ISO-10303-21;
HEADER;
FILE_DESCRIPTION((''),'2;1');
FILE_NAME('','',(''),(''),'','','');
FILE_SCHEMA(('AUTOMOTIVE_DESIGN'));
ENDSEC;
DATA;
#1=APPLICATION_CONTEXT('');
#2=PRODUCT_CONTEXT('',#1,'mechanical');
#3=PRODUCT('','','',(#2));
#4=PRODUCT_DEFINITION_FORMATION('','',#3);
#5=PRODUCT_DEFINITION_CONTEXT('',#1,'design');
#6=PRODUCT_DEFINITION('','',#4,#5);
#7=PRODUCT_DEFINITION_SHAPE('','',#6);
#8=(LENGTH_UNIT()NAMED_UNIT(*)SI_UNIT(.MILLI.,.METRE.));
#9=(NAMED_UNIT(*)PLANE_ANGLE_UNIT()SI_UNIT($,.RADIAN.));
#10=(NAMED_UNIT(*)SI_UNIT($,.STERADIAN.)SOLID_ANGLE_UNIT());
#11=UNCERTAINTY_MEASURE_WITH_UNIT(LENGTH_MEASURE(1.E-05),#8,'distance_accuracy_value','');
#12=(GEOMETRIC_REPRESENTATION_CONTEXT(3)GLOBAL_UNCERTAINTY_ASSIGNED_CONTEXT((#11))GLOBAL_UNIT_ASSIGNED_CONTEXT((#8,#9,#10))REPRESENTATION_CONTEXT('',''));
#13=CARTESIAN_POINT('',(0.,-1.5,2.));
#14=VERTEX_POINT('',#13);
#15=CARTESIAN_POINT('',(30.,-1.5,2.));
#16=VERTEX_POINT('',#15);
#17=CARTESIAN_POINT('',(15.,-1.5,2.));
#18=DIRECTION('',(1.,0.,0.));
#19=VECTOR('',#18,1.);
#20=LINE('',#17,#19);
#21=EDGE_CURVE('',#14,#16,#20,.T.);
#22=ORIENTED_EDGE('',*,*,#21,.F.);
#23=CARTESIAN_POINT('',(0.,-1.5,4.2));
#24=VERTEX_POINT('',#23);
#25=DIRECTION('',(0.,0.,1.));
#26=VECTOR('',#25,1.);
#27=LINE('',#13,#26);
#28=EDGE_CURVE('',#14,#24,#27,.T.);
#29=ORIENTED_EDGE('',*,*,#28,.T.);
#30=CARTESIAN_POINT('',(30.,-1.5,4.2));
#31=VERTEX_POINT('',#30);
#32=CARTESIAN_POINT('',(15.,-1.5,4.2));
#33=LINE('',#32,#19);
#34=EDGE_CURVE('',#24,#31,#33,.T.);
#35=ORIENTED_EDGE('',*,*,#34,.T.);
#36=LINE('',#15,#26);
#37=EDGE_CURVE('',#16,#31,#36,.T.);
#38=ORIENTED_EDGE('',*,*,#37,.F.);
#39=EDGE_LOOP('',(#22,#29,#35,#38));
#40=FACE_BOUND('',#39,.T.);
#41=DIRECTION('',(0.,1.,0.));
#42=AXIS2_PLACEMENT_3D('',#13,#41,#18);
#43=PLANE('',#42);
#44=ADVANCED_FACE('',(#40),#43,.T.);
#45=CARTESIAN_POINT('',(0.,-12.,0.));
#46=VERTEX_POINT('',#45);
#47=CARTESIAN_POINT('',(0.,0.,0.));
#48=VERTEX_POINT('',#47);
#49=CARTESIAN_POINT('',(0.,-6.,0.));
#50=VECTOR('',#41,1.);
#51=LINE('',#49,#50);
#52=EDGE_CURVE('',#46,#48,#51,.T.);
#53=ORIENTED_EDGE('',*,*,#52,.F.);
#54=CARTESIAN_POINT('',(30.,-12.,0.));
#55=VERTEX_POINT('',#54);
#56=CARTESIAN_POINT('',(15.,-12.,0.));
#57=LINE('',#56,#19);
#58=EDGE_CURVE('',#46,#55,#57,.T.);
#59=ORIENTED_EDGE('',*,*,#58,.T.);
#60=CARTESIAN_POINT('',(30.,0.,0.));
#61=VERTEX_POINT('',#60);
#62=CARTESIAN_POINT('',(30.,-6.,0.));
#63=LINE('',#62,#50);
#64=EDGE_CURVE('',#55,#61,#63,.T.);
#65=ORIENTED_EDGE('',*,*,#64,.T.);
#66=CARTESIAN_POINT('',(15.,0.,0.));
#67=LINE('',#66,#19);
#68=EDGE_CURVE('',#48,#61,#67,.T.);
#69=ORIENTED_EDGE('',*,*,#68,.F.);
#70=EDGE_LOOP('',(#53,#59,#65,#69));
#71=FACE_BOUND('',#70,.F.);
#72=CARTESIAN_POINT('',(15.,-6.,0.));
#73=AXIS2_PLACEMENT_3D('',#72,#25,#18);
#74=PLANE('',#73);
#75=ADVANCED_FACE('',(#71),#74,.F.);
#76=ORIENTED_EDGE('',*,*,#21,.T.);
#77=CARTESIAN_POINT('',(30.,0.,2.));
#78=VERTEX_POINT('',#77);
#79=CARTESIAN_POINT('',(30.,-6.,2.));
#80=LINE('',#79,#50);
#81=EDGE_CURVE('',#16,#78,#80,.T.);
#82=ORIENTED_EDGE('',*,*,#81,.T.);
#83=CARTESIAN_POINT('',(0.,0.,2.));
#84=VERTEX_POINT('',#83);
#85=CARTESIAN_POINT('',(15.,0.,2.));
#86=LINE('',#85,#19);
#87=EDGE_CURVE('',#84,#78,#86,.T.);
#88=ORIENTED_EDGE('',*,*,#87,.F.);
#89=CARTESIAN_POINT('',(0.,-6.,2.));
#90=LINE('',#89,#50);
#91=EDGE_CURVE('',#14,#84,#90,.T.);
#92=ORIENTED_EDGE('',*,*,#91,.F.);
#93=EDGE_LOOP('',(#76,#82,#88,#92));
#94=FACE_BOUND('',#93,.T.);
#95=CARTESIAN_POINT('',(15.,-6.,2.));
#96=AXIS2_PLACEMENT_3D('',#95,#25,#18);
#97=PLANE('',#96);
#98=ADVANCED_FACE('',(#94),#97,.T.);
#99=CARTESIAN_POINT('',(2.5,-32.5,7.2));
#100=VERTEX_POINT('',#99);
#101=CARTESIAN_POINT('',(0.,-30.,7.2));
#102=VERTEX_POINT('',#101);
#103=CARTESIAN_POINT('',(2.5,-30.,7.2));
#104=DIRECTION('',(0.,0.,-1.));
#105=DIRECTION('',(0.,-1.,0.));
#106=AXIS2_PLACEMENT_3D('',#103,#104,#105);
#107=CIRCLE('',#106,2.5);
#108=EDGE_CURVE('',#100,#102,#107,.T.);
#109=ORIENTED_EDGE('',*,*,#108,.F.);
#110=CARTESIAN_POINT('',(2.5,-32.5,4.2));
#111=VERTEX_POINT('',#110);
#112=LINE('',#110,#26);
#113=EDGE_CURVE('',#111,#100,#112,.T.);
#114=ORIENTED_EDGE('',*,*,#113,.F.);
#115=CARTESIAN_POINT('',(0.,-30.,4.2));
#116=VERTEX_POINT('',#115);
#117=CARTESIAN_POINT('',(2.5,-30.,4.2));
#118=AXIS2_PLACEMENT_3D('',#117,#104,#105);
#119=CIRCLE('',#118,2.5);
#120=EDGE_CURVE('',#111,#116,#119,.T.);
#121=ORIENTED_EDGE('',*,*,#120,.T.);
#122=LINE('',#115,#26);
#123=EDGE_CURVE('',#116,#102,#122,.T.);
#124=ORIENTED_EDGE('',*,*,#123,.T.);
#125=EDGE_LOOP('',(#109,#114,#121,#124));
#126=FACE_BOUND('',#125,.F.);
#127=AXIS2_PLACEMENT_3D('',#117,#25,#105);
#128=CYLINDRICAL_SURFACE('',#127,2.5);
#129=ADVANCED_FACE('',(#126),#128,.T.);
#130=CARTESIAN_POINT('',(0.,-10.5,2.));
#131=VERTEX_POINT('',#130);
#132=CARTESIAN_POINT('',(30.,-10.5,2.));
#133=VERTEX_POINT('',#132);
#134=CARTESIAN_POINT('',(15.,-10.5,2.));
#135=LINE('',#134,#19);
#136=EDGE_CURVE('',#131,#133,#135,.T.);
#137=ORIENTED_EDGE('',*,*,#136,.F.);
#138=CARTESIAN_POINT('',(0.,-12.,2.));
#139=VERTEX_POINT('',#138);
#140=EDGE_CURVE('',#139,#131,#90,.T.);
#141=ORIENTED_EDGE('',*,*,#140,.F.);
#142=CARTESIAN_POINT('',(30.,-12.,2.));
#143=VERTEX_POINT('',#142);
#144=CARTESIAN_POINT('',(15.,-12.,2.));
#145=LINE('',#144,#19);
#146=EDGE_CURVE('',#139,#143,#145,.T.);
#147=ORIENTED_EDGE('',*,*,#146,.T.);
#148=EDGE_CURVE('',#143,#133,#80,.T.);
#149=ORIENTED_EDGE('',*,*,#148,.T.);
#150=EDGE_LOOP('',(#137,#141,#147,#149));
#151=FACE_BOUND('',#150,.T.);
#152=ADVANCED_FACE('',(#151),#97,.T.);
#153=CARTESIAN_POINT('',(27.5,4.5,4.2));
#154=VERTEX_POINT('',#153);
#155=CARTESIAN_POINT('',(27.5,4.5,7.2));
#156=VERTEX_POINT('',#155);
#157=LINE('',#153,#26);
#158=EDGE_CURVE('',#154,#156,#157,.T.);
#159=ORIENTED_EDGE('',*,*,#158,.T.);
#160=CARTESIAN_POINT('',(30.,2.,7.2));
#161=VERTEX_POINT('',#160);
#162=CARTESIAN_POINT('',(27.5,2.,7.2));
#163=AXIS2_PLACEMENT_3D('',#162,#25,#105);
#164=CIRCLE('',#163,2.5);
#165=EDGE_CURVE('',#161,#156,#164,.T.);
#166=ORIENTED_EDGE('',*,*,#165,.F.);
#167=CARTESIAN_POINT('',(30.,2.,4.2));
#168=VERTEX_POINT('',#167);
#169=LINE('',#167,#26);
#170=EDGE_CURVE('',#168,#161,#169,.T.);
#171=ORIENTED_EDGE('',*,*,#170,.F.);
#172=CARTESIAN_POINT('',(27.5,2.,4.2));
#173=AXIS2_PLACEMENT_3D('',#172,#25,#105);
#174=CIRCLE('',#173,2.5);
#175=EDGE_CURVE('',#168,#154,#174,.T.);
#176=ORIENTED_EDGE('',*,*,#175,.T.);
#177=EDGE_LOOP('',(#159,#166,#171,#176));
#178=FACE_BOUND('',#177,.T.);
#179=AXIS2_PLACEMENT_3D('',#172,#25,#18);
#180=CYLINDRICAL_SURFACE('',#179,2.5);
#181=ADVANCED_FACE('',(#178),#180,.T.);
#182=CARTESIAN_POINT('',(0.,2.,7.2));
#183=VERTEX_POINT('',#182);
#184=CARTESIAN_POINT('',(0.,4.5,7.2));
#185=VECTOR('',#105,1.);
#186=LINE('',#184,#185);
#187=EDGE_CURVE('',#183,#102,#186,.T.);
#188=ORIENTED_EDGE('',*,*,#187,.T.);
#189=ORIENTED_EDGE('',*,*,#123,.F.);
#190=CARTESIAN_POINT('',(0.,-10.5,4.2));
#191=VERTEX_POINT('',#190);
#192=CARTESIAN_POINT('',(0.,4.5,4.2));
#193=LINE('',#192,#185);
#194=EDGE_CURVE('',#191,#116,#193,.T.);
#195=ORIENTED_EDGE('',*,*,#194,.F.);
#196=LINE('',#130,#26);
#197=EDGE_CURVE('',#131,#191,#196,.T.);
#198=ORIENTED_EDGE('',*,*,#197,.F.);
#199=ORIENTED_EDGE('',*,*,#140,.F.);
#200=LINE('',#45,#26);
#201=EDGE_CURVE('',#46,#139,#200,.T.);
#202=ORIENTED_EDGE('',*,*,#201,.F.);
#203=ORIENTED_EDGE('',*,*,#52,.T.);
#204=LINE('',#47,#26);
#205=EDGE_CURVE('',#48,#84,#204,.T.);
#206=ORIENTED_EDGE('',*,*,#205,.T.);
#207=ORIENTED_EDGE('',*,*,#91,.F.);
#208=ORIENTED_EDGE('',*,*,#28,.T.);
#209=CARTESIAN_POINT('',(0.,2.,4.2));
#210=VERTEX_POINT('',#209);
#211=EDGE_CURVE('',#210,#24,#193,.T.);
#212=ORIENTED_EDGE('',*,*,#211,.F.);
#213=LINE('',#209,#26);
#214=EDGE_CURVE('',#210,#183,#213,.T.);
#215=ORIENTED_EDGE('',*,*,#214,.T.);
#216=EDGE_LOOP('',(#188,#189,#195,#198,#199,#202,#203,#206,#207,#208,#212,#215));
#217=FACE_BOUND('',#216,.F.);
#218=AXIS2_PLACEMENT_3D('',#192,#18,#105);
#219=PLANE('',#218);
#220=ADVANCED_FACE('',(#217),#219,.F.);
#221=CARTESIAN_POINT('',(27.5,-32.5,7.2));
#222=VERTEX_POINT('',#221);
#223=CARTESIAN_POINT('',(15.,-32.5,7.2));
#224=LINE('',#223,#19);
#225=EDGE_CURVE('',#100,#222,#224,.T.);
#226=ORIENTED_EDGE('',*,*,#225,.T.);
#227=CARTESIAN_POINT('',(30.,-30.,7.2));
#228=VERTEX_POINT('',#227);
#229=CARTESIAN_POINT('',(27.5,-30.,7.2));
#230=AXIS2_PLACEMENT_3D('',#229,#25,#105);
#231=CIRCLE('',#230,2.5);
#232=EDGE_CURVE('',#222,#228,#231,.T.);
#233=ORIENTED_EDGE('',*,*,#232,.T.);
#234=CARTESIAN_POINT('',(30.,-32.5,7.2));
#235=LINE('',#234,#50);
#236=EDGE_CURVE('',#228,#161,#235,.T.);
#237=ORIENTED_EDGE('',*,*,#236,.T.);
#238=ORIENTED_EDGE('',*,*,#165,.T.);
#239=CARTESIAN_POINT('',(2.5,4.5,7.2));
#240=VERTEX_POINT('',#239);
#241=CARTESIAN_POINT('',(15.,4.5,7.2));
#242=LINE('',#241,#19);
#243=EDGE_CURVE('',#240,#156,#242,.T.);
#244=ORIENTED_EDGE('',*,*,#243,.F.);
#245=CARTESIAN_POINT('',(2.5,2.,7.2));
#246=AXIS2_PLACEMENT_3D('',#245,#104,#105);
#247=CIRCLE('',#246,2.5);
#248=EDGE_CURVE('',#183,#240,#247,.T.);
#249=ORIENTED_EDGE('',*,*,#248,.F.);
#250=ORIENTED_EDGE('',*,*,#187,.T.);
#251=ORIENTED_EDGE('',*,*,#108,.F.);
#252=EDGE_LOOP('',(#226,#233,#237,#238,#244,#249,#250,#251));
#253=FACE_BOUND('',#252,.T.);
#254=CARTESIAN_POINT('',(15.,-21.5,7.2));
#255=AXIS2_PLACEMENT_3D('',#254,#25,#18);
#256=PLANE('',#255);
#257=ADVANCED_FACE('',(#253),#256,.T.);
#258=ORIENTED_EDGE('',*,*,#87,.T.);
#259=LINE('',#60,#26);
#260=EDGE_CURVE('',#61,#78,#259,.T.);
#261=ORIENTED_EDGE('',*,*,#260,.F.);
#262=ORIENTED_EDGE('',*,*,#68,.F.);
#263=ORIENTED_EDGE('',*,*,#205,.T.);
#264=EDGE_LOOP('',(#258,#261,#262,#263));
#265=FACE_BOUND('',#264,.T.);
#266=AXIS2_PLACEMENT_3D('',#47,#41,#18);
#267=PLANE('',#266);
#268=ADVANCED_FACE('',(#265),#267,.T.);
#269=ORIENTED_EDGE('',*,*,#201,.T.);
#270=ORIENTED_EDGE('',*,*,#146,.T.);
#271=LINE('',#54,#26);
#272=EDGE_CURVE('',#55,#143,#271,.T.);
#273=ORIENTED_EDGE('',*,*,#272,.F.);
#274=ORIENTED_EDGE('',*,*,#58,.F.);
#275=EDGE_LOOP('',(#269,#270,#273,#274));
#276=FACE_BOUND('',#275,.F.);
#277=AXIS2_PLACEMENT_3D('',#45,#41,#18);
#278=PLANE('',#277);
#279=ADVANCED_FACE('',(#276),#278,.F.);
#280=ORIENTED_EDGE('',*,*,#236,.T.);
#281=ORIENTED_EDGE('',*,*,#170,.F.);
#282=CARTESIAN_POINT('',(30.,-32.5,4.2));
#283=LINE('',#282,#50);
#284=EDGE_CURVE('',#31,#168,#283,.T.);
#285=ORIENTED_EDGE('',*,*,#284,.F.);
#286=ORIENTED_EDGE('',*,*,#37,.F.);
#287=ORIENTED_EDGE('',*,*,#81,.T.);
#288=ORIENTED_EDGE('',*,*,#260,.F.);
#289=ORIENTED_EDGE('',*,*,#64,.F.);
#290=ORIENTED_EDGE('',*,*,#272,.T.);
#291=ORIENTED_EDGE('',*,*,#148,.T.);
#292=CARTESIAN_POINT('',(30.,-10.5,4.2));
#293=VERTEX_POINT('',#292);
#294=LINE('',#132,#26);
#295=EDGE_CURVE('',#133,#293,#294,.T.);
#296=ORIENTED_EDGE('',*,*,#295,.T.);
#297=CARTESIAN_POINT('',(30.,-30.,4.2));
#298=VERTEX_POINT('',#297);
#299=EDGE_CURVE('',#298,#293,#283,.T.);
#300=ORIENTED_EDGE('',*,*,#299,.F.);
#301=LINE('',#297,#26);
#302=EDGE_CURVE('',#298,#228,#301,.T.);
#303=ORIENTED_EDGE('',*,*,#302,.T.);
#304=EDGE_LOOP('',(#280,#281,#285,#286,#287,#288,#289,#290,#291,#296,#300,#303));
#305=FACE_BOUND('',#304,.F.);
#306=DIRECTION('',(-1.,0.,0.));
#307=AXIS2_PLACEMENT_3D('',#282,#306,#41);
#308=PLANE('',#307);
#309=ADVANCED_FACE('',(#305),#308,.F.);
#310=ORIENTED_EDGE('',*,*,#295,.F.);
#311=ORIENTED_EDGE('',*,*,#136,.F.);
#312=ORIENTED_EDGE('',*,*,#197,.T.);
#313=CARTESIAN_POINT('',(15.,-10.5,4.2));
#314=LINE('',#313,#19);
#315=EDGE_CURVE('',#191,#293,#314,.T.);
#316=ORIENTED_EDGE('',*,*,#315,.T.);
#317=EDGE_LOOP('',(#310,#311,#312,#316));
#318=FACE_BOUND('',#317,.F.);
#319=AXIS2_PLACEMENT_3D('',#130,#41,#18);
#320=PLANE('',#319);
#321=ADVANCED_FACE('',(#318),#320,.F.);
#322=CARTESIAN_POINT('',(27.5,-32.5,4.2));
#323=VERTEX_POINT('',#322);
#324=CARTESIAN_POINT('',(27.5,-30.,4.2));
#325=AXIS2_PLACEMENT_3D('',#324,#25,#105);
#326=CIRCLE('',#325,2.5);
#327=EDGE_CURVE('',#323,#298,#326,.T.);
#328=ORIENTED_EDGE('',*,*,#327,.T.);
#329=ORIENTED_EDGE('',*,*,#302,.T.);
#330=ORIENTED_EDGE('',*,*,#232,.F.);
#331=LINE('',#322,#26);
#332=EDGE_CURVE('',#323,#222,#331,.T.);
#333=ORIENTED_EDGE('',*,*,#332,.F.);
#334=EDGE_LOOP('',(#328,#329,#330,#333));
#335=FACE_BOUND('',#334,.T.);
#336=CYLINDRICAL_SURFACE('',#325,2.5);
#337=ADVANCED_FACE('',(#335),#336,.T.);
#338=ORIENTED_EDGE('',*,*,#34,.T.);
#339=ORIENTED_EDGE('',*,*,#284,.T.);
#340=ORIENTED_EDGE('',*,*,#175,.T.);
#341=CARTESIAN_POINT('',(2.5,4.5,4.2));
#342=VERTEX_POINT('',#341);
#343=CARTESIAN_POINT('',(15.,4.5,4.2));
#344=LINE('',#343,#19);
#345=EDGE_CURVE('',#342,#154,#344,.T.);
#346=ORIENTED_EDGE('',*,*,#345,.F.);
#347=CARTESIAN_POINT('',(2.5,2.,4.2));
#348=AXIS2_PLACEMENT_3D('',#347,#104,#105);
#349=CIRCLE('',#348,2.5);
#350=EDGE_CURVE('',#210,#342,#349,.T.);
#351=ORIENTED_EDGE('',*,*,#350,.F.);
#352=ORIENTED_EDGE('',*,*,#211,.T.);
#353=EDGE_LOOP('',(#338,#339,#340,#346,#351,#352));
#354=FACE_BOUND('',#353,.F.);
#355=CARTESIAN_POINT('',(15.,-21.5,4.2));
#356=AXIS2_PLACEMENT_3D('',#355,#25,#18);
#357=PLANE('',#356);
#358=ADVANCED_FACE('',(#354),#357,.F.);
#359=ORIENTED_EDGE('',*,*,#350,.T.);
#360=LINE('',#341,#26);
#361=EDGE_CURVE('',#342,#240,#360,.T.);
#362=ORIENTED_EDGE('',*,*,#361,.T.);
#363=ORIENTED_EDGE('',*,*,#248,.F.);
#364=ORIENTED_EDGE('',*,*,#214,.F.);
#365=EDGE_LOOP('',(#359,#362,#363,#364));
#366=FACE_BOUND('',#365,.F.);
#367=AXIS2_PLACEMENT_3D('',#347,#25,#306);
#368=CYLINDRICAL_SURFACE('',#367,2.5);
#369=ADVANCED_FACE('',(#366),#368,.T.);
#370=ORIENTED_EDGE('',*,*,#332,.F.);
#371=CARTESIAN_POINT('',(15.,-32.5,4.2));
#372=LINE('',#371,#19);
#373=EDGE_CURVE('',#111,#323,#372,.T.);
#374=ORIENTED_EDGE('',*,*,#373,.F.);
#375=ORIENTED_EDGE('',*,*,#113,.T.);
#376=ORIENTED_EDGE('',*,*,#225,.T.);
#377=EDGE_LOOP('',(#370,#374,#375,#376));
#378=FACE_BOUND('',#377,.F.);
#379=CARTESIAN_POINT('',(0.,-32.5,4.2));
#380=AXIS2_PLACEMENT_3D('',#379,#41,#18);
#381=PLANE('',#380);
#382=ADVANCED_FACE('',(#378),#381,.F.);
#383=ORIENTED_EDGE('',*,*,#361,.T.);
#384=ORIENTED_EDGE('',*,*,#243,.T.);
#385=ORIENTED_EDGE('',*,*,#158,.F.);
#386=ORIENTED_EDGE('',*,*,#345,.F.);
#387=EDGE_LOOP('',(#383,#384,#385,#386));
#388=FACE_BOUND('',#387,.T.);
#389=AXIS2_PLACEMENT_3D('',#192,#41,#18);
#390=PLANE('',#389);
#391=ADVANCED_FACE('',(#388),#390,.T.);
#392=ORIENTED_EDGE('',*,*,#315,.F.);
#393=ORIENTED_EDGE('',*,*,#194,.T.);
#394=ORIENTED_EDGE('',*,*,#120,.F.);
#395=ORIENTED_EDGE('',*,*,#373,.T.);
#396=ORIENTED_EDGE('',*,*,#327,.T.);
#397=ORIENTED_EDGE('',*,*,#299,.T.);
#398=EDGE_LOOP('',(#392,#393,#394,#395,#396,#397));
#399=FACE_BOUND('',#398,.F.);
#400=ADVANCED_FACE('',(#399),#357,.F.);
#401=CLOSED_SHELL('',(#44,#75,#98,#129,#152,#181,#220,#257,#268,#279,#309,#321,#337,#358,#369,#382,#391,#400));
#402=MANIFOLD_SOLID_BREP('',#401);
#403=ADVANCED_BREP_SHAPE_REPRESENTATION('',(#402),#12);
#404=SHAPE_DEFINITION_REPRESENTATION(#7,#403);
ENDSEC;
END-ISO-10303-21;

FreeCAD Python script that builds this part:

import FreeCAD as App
import Part
import Sketcher
Q = App.Units.Quantity


def edges_at(feature, points):
    """Names of the edges that pass closest to the given points."""
    edges = feature.Shape.Edges
    near = lambda p: min(range(len(edges)), key=lambda i: edges[i].distToShape(Part.Vertex(*p))[0])
    return sorted({f"Edge{near(p) + 1}" for p in points})


def add_polygon(sketch, points):
    """Adds a closed chain of lines whose ends are joined by coincident constraints."""
    first, n = sketch.GeometryCount, len(points)
    for a, b in zip(points, points[1:] + points[:1]):
        sketch.addGeometry(Part.LineSegment(App.Vector(*a, 0), App.Vector(*b, 0)), False)
    for i in range(n):
        sketch.addConstraint(Sketcher.Constraint("Coincident", first + i, 2, first + (i + 1) % n, 1))

doc = App.newDocument("Part")
body = doc.addObject("PartDesign::Body", "Body")

sketch1 = doc.addObject("Sketcher::SketchObject", "Sketch")
body.addObject(sketch1)
sketch1.AttachmentSupport = (doc.XY_Plane, [""])
sketch1.MapMode = "FlatFace"
add_polygon(sketch1, [(0, 0), (0, -12), (30, -12), (30, 0)])
sketch1.addConstraint([
    Sketcher.Constraint("Vertical", 0),
    Sketcher.Constraint("Horizontal", 1),
    Sketcher.Constraint("Vertical", 2),
    Sketcher.Constraint("Horizontal", 3),
    Sketcher.Constraint("Coincident", 3, 2, -1, 1),
    Sketcher.Constraint("DistanceX", 1, 1, 1, 2, Q("30 mm")),
    Sketcher.Constraint("DistanceY", 0, 2, 0, 1, Q("12 mm")),
])
pad1 = doc.addObject("PartDesign::Pad", "Pad")
body.addObject(pad1)
pad1.Profile = sketch1
pad1.Length = 2

sketch2 = doc.addObject("Sketcher::SketchObject", "Sketch001")
body.addObject(sketch2)
sketch2.AttachmentSupport = (doc.XY_Plane, [""])
sketch2.MapMode = "FlatFace"
sketch2.AttachmentOffset = App.Placement(App.Vector(0, 0, 2), App.Rotation())
add_polygon(sketch2, [(0, -2), (0, -10), (30, -10), (30, -2)])
sketch2.addConstraint([
    Sketcher.Constraint("Vertical", 0),
    Sketcher.Constraint("Horizontal", 1),
    Sketcher.Constraint("Vertical", 2),
    Sketcher.Constraint("Horizontal", 3),
    Sketcher.Constraint("PointOnObject", 0, 2, -2),
    Sketcher.Constraint("DistanceX", 1, 1, 1, 2, Q("30 mm")),
    Sketcher.Constraint("DistanceY", 0, 2, 0, 1, Q("9 mm")),
    Sketcher.Constraint("DistanceY", 0, 2, -1, 1, Q("10.5 mm")),
])
pad2 = doc.addObject("PartDesign::Pad", "Pad001")
body.addObject(pad2)
pad2.Profile = sketch2
pad2.Length = 2.2

sketch3 = doc.addObject("Sketcher::SketchObject", "Sketch002")
body.addObject(sketch3)
sketch3.AttachmentSupport = (doc.XY_Plane, [""])
sketch3.MapMode = "FlatFace"
sketch3.AttachmentOffset = App.Placement(App.Vector(0, 0, 4.2), App.Rotation())
add_polygon(sketch3, [(0, -32), (30, -32), (30, 4), (0, 4)])
sketch3.addConstraint([
    Sketcher.Constraint("Horizontal", 0),
    Sketcher.Constraint("Vertical", 1),
    Sketcher.Constraint("Horizontal", 2),
    Sketcher.Constraint("Vertical", 3),
    Sketcher.Constraint("PointOnObject", 2, 2, -2),
    Sketcher.Constraint("DistanceX", 0, 1, 0, 2, Q("30 mm")),
    Sketcher.Constraint("DistanceY", 1, 1, 1, 2, Q("37 mm")),
    Sketcher.Constraint("DistanceY", 0, 2, -1, 1, Q("32.5 mm")),
])
pad3 = doc.addObject("PartDesign::Pad", "Pad002")
body.addObject(pad3)
pad3.Profile = sketch3
pad3.Length = 3
doc.recompute()

fillet = doc.addObject("PartDesign::Fillet", "Fillet")
body.addObject(fillet)
fillet.Base = (pad3, edges_at(pad3, [
    (0, -32.5, 5.7),
    (30, -32.5, 5.7),
    (30, 4.5, 5.7),
    (0, 4.5, 5.7),
]))
fillet.Radius = 2.5

doc.recompute()
